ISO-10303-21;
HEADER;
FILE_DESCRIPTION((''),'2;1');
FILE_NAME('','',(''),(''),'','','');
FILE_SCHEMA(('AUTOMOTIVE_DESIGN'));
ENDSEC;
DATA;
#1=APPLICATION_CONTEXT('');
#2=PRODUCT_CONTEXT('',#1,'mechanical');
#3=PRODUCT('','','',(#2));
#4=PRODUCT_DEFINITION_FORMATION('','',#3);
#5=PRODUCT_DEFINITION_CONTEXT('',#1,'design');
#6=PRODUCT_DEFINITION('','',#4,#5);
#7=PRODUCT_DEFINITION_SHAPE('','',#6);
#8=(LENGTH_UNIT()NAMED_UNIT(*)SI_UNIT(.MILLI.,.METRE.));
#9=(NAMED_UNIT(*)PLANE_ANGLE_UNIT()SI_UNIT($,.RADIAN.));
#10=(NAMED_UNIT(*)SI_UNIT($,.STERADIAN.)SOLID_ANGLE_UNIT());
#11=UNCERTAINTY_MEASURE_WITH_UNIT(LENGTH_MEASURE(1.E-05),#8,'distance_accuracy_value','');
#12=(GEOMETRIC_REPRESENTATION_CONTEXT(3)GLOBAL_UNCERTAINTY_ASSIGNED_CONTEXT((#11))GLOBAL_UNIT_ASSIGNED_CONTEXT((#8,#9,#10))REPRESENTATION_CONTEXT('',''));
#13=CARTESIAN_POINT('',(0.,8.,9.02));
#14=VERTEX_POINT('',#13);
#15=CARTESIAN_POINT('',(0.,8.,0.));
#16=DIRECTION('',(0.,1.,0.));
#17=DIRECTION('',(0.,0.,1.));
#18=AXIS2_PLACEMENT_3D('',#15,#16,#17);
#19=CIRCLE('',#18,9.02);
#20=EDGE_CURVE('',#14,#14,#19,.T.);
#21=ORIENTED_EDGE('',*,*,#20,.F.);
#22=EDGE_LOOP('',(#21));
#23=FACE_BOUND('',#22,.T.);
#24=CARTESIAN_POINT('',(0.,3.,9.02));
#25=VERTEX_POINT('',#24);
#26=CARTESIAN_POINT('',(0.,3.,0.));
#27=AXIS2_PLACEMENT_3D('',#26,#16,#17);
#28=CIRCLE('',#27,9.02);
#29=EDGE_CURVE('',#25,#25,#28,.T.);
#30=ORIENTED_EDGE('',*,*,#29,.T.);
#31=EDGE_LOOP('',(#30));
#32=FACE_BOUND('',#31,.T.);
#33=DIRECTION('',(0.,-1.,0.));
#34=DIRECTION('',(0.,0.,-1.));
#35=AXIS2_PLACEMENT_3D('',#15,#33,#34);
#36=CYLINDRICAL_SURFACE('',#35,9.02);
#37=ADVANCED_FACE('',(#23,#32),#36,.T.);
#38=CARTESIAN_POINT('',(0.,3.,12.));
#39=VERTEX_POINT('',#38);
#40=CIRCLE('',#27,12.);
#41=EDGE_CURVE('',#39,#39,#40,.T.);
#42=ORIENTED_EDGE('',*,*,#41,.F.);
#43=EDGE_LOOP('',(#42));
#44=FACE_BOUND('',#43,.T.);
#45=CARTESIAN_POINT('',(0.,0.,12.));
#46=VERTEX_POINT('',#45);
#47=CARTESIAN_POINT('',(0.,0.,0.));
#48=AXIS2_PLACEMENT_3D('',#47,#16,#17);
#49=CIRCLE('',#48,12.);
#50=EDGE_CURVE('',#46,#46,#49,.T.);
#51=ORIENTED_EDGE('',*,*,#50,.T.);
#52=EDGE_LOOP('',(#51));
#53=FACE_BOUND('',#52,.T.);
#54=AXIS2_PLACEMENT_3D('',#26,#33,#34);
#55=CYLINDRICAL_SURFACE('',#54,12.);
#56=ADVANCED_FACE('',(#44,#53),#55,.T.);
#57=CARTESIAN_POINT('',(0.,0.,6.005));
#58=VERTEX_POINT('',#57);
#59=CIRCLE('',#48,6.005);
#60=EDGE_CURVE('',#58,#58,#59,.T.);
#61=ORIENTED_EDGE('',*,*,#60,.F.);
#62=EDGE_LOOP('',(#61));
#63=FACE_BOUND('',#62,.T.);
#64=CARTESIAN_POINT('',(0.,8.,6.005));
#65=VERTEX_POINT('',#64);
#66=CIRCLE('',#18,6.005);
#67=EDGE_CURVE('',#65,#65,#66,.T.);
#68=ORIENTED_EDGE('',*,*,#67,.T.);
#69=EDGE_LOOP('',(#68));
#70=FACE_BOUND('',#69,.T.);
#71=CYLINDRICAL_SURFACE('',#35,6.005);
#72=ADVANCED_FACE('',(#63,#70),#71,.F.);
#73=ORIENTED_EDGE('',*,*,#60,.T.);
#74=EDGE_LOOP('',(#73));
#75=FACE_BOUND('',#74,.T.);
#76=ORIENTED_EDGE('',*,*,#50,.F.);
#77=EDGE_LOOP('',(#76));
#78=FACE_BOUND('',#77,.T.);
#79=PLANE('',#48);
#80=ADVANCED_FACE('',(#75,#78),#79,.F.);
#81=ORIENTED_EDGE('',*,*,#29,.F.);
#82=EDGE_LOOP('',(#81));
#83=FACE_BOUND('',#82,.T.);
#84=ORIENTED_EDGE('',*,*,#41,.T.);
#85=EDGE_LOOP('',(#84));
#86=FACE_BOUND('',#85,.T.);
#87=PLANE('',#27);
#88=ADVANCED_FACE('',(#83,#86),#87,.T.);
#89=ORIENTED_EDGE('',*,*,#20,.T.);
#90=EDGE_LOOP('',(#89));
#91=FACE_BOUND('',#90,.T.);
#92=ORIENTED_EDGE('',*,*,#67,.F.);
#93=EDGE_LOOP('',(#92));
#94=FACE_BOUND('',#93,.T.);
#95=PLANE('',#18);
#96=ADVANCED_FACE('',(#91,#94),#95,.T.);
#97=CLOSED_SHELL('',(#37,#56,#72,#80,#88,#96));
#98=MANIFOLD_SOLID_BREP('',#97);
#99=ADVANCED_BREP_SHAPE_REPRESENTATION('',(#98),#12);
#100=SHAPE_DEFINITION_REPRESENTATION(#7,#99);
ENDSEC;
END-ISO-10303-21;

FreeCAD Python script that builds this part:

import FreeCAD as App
import Part
import Sketcher
Q = App.Units.Quantity

doc = App.newDocument("Part")
body = doc.addObject("PartDesign::Body", "Body")

# Sketch on XZ plane
sketch1 = body.newObject("Sketcher::SketchObject", "Sketch")
sketch1.AttachmentSupport = (doc.getObject("XZ_Plane"), [""])
sketch1.MapMode = "FlatFace"
sketch1.addGeometry([
    Part.Circle(App.Vector(0, 0, 0), App.Vector(0, 0, 1), 9),
    Part.Circle(App.Vector(0, 0, 0), App.Vector(0, 0, 1), 6),
], False)
sketch1.addConstraint([
    Sketcher.Constraint("Coincident", 0, 3, -1, 1),
    Sketcher.Constraint("Coincident", 1, 3, -1, 1),
    Sketcher.Constraint("Diameter", 0, Q("18.04 mm")),
    Sketcher.Constraint("Diameter", 1, Q("12.01 mm")),
])
pad1 = body.newObject("PartDesign::Pad", "Pad")
pad1.Profile = sketch1
pad1.Length = 8
pad1.Reversed = True

# Sketch on XZ plane
sketch2 = body.newObject("Sketcher::SketchObject", "Sketch001")
sketch2.AttachmentSupport = (doc.getObject("XZ_Plane"), [""])
sketch2.MapMode = "FlatFace"
sketch2.addGeometry([
    Part.Circle(App.Vector(0, 0, 0), App.Vector(0, 0, 1), 12),
    Part.Circle(App.Vector(0, 0, 0), App.Vector(0, 0, 1), 9),
], False)
sketch2.addConstraint([
    Sketcher.Constraint("Coincident", 0, 3, -1, 1),
    Sketcher.Constraint("Coincident", 1, 3, -1, 1),
    Sketcher.Constraint("Diameter", 0, Q("24 mm")),
    Sketcher.Constraint("Diameter", 1, Q("18.04 mm")),
])
pad2 = body.newObject("PartDesign::Pad", "Pad001")
pad2.Profile = sketch2
pad2.Length = 3
pad2.Reversed = True

doc.recompute()
